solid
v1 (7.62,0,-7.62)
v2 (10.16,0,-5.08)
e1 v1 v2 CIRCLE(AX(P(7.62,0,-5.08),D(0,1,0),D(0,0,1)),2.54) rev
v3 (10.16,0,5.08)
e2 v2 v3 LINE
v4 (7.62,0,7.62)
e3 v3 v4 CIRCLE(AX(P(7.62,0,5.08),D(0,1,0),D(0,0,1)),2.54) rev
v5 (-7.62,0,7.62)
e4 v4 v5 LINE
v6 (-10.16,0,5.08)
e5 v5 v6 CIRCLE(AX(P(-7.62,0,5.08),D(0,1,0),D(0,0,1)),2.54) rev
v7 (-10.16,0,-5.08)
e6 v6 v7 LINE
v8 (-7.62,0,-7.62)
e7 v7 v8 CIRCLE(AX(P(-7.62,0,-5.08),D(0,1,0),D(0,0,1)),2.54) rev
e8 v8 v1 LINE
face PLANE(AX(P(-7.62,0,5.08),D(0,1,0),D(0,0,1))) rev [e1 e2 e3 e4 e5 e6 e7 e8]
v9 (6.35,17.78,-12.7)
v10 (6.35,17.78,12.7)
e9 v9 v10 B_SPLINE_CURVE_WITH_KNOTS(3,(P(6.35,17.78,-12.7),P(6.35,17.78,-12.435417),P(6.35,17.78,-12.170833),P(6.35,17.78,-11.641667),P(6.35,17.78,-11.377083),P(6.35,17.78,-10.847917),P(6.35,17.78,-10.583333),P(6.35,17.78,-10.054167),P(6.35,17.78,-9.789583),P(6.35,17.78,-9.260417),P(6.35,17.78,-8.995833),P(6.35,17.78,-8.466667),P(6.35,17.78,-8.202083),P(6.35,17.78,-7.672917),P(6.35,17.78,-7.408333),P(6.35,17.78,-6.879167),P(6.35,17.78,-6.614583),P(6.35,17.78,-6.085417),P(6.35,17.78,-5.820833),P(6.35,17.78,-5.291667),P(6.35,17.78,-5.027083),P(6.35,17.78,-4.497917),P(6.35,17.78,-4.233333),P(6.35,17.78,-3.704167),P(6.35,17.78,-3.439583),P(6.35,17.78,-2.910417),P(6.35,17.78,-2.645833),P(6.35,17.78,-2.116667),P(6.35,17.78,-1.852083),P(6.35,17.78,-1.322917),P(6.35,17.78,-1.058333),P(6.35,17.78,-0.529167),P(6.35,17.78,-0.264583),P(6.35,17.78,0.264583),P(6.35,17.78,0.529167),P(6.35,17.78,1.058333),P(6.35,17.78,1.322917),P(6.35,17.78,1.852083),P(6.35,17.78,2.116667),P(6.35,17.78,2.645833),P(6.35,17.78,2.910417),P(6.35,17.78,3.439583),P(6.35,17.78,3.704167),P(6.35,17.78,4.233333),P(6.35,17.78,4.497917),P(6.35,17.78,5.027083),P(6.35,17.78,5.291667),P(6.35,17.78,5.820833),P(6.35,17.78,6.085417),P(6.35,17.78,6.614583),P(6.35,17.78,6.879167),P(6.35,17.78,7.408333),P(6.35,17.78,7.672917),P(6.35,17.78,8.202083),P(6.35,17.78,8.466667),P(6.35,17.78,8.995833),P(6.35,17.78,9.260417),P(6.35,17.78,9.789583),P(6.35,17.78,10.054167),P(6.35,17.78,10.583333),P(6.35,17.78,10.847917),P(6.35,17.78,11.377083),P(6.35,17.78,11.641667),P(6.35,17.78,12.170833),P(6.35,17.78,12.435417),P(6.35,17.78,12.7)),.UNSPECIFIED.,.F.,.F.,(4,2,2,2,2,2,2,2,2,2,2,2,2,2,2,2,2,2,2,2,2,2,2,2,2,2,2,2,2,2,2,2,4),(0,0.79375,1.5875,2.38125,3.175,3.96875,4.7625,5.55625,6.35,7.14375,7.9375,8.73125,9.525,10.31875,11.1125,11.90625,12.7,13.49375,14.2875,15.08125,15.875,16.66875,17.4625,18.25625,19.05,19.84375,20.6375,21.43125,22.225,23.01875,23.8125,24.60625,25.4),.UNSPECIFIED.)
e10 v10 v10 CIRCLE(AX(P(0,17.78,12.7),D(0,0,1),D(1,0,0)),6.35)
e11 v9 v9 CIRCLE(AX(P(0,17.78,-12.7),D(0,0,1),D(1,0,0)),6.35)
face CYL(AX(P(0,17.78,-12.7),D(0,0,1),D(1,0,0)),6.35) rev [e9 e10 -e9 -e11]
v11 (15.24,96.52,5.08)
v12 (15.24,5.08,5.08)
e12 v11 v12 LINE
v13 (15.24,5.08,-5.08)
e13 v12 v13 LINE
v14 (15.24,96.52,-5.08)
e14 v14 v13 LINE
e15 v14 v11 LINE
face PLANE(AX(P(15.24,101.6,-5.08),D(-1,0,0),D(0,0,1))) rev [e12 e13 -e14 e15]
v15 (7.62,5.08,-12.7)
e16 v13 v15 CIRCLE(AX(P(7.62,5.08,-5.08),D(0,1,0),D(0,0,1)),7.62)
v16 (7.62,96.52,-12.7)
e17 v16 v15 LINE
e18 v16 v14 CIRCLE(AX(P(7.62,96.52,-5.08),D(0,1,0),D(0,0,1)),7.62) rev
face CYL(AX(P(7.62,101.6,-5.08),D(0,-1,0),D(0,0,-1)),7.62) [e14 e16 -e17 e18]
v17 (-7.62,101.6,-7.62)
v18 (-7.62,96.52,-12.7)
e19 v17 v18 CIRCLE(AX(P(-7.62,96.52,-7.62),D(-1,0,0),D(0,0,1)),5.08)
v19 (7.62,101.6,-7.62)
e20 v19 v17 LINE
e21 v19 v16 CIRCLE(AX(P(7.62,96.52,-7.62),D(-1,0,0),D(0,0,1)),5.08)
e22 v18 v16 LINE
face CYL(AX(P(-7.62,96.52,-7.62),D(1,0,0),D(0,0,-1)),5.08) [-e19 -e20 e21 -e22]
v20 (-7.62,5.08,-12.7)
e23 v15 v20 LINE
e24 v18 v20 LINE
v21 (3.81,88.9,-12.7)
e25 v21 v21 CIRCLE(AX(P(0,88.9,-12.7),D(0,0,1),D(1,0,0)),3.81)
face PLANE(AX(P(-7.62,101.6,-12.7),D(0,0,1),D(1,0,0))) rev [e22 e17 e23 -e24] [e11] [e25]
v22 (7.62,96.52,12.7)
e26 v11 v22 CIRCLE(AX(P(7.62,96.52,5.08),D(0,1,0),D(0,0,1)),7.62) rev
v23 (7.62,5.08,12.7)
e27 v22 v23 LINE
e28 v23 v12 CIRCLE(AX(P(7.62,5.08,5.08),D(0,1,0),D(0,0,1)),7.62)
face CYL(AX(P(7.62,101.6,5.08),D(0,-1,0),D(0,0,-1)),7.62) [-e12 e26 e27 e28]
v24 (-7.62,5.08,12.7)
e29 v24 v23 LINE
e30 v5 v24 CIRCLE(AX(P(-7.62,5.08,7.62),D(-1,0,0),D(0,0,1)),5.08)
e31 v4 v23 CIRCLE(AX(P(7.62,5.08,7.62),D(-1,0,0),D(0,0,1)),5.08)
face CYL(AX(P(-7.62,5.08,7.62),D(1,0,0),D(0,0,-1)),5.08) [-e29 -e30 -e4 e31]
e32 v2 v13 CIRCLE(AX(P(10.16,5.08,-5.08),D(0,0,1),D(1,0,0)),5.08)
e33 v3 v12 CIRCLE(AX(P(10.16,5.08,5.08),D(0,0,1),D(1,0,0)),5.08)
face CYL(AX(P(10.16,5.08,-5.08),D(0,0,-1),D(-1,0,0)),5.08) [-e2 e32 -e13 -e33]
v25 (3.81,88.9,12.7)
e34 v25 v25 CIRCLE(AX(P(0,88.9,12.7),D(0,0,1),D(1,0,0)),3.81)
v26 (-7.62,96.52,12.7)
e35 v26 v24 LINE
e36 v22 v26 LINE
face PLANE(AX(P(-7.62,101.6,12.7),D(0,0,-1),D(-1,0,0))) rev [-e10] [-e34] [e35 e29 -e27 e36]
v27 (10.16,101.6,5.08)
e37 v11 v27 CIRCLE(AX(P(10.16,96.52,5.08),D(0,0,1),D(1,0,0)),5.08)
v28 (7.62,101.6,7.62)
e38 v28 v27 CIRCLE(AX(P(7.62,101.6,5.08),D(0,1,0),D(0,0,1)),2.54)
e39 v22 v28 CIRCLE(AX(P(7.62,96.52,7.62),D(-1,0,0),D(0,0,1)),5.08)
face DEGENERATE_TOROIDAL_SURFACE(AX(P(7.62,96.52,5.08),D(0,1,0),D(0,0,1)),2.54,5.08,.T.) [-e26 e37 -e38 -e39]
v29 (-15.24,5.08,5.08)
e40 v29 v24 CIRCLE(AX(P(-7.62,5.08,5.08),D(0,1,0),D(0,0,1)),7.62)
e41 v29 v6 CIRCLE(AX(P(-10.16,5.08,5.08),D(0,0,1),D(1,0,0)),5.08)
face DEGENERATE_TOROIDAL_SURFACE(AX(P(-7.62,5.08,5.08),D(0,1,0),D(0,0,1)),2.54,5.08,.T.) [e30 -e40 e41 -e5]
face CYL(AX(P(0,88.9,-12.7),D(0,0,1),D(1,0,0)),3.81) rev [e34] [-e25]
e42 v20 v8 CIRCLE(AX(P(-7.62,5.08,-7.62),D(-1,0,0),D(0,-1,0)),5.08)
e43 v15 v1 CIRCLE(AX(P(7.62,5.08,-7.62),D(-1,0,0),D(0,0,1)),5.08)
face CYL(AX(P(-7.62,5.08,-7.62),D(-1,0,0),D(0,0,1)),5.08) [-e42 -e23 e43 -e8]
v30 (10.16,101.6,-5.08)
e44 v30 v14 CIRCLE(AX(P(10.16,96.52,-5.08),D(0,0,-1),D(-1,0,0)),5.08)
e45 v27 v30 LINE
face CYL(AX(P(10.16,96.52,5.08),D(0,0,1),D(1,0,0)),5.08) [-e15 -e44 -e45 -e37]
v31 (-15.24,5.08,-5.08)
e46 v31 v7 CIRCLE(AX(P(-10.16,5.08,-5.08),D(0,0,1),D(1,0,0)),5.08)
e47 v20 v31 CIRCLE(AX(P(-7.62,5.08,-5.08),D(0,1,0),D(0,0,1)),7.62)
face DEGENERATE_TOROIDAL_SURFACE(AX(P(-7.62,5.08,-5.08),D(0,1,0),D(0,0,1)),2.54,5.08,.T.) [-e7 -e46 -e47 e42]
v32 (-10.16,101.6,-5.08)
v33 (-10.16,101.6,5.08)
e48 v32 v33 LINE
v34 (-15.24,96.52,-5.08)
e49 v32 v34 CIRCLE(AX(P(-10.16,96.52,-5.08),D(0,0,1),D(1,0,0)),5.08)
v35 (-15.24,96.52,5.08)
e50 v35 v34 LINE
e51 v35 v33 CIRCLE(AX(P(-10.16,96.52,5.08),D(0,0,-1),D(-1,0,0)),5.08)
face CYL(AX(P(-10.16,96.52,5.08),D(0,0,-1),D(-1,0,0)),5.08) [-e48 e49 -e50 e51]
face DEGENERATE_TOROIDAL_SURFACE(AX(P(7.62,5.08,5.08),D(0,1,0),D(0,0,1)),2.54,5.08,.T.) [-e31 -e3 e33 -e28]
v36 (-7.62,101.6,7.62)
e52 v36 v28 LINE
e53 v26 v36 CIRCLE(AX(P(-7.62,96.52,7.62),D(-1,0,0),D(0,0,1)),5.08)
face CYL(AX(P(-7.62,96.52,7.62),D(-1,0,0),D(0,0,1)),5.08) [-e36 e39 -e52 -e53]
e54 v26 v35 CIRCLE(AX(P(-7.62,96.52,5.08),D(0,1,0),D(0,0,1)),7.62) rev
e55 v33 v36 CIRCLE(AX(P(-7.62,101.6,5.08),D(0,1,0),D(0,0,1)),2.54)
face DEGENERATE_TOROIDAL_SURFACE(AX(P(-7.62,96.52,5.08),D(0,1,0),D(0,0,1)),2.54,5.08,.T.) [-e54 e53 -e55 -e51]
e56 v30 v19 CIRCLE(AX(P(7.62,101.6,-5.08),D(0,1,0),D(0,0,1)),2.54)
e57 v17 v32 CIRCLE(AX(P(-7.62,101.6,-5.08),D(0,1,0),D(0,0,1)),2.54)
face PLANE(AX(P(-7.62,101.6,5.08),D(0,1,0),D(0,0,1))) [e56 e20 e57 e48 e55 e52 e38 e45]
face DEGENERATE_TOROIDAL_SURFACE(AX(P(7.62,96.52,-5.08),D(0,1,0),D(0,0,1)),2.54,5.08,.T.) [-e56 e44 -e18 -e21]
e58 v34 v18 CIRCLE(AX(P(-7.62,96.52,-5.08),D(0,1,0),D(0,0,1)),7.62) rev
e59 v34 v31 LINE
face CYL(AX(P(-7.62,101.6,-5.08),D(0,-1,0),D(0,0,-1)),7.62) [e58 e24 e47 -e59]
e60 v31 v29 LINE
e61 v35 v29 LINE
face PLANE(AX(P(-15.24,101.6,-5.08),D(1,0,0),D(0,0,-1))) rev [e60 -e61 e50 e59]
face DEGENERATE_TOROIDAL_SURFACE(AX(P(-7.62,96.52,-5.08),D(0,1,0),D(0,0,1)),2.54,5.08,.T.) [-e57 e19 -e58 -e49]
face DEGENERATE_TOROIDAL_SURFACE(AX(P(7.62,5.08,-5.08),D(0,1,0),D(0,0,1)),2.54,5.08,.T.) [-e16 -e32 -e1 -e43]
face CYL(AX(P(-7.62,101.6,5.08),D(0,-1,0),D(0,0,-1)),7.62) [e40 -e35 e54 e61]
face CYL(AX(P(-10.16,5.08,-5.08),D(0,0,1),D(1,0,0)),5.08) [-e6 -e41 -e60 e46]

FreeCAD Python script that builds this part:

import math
import FreeCAD as App
import Part
import Sketcher
Q = App.Units.Quantity


def edges_at(feature, points):
    """Names of the edges that pass closest to the given points."""
    edges = feature.Shape.Edges
    near = lambda p: min(range(len(edges)), key=lambda i: edges[i].distToShape(Part.Vertex(*p))[0])
    return sorted({f"Edge{near(p) + 1}" for p in points})

doc = App.newDocument("Part")
body = doc.addObject("PartDesign::Body", "Body")

# Sketch on XZ plane
sketch1 = body.newObject("Sketcher::SketchObject", "Sketch")
sketch1.AttachmentSupport = (doc.getObject("XZ_Plane"), [""])
sketch1.MapMode = "FlatFace"
sketch1.addGeometry([
    Part.LineSegment(App.Vector(8, -13, 0), App.Vector(-8, -13, 0)),  # 0
    Part.ArcOfCircle(Part.Circle(App.Vector(-8, -5, 0), App.Vector(0, 0, 1), 8), math.radians(180), math.radians(270)),  # 1
    Part.LineSegment(App.Vector(-15, -5, 0), App.Vector(-15, 5, 0)),  # 2
    Part.ArcOfCircle(Part.Circle(App.Vector(-8, 5, 0), App.Vector(0, 0, 1), 8), math.radians(90), math.radians(180)),  # 3
    Part.LineSegment(App.Vector(-8, 13, 0), App.Vector(8, 13, 0)),  # 4
    Part.ArcOfCircle(Part.Circle(App.Vector(8, 5, 0), App.Vector(0, 0, 1), 8), math.radians(0), math.radians(90)),  # 5
    Part.LineSegment(App.Vector(15, 5, 0), App.Vector(15, -5, 0)),  # 6
    Part.ArcOfCircle(Part.Circle(App.Vector(8, -5, 0), App.Vector(0, 0, 1), 8), math.radians(-90), math.radians(0)),  # 7
], False)
sketch1.addConstraint([
    Sketcher.Constraint("Tangent", 0, 2, 1, 2),
    Sketcher.Constraint("Tangent", 1, 1, 2, 1),
    Sketcher.Constraint("Tangent", 2, 2, 3, 2),
    Sketcher.Constraint("Tangent", 3, 1, 4, 1),
    Sketcher.Constraint("Tangent", 4, 2, 5, 2),
    Sketcher.Constraint("Tangent", 5, 1, 6, 1),
    Sketcher.Constraint("Tangent", 6, 2, 7, 2),
    Sketcher.Constraint("Tangent", 7, 1, 0, 1),
    Sketcher.Constraint("Horizontal", 0),
    Sketcher.Constraint("Vertical", 2),
    Sketcher.Constraint("Horizontal", 4),
    Sketcher.Constraint("Vertical", 6),
    Sketcher.Constraint("Equal", 1, 3),
    Sketcher.Constraint("Equal", 3, 5),
    Sketcher.Constraint("Equal", 5, 7),
    Sketcher.Constraint("Symmetric", 1, 3, 5, 3, -1, 1),
    Sketcher.Constraint("Radius", 1, Q("0.3 in")),
    Sketcher.Constraint("DistanceX", 0, 2, 0, 1, Q("0.6 in")),
    Sketcher.Constraint("DistanceY", 2, 1, 2, 2, Q("0.4 in")),
])
pad1 = body.newObject("PartDesign::Pad", "Pad")
pad1.Profile = sketch1
pad1.Length = Q("4 in")
pad1.Reversed = True

# Sketch on XY plane
sketch2 = body.newObject("Sketcher::SketchObject", "Sketch001")
sketch2.AttachmentSupport = (doc.getObject("XY_Plane"), [""])
sketch2.MapMode = "FlatFace"
sketch2.AttachmentOffset = App.Placement(App.Vector(0, 0, 0.5 * 25.4), App.Rotation())
sketch2.addGeometry(Part.Circle(App.Vector(0, 18, 0), App.Vector(0, 0, 1), 6), False)
sketch2.addConstraint([
    Sketcher.Constraint("PointOnObject", 0, 3, -2),
    Sketcher.Constraint("Diameter", 0, Q("0.5 in")),
    Sketcher.Constraint("DistanceY", -1, 1, 0, 3, Q("0.7 in")),
])
pocket1 = body.newObject("PartDesign::Pocket", "Pocket")
pocket1.Profile = sketch2
pocket1.Type = "ThroughAll"

# Sketch on XY plane
sketch3 = body.newObject("Sketcher::SketchObject", "Sketch002")
sketch3.AttachmentSupport = (doc.getObject("XY_Plane"), [""])
sketch3.MapMode = "FlatFace"
sketch3.AttachmentOffset = App.Placement(App.Vector(0, 0, 0.5 * 25.4), App.Rotation())
sketch3.addGeometry(Part.Circle(App.Vector(0, 88.9, 0), App.Vector(0, 0, 1), 3.8), False)
sketch3.addConstraint([
    Sketcher.Constraint("PointOnObject", 0, 3, -2),
    Sketcher.Constraint("Diameter", 0, Q("0.3 in")),
    Sketcher.Constraint("DistanceY", -1, 1, 0, 3, Q("3.5 in")),
])
pocket2 = body.newObject("PartDesign::Pocket", "Pocket001")
pocket2.Profile = sketch3
pocket2.Type = "ThroughAll"
doc.recompute()

fillet = body.newObject("PartDesign::Fillet", "Fillet")
fillet.Base = (pocket2, edges_at(pocket2, [
    (0, 0, 12.7),
    (-13.008, 0, 10.468),
    (-15.24, 0, 0),
    (-13.008, 0, -10.468),
    (0, 0, -12.7),
    (13.008, 0, -10.468),
    (15.24, 0, 0),
    (13.008, 0, 10.468),
]))
fillet.Radius = Q("0.2 in")
doc.recompute()

fillet2 = body.newObject("PartDesign::Fillet", "Fillet001")
fillet2.Base = (fillet, edges_at(fillet, [
    (13.008, 101.6, 10.468),
    (15.24, 101.6, 0),
    (13.008, 101.6, -10.468),
    (0, 101.6, -12.7),
    (-13.008, 101.6, -10.468),
    (-15.24, 101.6, 0),
    (-13.008, 101.6, 10.468),
    (0, 101.6, 12.7),
]))
fillet2.Radius = Q("0.2 in")

doc.recompute()
